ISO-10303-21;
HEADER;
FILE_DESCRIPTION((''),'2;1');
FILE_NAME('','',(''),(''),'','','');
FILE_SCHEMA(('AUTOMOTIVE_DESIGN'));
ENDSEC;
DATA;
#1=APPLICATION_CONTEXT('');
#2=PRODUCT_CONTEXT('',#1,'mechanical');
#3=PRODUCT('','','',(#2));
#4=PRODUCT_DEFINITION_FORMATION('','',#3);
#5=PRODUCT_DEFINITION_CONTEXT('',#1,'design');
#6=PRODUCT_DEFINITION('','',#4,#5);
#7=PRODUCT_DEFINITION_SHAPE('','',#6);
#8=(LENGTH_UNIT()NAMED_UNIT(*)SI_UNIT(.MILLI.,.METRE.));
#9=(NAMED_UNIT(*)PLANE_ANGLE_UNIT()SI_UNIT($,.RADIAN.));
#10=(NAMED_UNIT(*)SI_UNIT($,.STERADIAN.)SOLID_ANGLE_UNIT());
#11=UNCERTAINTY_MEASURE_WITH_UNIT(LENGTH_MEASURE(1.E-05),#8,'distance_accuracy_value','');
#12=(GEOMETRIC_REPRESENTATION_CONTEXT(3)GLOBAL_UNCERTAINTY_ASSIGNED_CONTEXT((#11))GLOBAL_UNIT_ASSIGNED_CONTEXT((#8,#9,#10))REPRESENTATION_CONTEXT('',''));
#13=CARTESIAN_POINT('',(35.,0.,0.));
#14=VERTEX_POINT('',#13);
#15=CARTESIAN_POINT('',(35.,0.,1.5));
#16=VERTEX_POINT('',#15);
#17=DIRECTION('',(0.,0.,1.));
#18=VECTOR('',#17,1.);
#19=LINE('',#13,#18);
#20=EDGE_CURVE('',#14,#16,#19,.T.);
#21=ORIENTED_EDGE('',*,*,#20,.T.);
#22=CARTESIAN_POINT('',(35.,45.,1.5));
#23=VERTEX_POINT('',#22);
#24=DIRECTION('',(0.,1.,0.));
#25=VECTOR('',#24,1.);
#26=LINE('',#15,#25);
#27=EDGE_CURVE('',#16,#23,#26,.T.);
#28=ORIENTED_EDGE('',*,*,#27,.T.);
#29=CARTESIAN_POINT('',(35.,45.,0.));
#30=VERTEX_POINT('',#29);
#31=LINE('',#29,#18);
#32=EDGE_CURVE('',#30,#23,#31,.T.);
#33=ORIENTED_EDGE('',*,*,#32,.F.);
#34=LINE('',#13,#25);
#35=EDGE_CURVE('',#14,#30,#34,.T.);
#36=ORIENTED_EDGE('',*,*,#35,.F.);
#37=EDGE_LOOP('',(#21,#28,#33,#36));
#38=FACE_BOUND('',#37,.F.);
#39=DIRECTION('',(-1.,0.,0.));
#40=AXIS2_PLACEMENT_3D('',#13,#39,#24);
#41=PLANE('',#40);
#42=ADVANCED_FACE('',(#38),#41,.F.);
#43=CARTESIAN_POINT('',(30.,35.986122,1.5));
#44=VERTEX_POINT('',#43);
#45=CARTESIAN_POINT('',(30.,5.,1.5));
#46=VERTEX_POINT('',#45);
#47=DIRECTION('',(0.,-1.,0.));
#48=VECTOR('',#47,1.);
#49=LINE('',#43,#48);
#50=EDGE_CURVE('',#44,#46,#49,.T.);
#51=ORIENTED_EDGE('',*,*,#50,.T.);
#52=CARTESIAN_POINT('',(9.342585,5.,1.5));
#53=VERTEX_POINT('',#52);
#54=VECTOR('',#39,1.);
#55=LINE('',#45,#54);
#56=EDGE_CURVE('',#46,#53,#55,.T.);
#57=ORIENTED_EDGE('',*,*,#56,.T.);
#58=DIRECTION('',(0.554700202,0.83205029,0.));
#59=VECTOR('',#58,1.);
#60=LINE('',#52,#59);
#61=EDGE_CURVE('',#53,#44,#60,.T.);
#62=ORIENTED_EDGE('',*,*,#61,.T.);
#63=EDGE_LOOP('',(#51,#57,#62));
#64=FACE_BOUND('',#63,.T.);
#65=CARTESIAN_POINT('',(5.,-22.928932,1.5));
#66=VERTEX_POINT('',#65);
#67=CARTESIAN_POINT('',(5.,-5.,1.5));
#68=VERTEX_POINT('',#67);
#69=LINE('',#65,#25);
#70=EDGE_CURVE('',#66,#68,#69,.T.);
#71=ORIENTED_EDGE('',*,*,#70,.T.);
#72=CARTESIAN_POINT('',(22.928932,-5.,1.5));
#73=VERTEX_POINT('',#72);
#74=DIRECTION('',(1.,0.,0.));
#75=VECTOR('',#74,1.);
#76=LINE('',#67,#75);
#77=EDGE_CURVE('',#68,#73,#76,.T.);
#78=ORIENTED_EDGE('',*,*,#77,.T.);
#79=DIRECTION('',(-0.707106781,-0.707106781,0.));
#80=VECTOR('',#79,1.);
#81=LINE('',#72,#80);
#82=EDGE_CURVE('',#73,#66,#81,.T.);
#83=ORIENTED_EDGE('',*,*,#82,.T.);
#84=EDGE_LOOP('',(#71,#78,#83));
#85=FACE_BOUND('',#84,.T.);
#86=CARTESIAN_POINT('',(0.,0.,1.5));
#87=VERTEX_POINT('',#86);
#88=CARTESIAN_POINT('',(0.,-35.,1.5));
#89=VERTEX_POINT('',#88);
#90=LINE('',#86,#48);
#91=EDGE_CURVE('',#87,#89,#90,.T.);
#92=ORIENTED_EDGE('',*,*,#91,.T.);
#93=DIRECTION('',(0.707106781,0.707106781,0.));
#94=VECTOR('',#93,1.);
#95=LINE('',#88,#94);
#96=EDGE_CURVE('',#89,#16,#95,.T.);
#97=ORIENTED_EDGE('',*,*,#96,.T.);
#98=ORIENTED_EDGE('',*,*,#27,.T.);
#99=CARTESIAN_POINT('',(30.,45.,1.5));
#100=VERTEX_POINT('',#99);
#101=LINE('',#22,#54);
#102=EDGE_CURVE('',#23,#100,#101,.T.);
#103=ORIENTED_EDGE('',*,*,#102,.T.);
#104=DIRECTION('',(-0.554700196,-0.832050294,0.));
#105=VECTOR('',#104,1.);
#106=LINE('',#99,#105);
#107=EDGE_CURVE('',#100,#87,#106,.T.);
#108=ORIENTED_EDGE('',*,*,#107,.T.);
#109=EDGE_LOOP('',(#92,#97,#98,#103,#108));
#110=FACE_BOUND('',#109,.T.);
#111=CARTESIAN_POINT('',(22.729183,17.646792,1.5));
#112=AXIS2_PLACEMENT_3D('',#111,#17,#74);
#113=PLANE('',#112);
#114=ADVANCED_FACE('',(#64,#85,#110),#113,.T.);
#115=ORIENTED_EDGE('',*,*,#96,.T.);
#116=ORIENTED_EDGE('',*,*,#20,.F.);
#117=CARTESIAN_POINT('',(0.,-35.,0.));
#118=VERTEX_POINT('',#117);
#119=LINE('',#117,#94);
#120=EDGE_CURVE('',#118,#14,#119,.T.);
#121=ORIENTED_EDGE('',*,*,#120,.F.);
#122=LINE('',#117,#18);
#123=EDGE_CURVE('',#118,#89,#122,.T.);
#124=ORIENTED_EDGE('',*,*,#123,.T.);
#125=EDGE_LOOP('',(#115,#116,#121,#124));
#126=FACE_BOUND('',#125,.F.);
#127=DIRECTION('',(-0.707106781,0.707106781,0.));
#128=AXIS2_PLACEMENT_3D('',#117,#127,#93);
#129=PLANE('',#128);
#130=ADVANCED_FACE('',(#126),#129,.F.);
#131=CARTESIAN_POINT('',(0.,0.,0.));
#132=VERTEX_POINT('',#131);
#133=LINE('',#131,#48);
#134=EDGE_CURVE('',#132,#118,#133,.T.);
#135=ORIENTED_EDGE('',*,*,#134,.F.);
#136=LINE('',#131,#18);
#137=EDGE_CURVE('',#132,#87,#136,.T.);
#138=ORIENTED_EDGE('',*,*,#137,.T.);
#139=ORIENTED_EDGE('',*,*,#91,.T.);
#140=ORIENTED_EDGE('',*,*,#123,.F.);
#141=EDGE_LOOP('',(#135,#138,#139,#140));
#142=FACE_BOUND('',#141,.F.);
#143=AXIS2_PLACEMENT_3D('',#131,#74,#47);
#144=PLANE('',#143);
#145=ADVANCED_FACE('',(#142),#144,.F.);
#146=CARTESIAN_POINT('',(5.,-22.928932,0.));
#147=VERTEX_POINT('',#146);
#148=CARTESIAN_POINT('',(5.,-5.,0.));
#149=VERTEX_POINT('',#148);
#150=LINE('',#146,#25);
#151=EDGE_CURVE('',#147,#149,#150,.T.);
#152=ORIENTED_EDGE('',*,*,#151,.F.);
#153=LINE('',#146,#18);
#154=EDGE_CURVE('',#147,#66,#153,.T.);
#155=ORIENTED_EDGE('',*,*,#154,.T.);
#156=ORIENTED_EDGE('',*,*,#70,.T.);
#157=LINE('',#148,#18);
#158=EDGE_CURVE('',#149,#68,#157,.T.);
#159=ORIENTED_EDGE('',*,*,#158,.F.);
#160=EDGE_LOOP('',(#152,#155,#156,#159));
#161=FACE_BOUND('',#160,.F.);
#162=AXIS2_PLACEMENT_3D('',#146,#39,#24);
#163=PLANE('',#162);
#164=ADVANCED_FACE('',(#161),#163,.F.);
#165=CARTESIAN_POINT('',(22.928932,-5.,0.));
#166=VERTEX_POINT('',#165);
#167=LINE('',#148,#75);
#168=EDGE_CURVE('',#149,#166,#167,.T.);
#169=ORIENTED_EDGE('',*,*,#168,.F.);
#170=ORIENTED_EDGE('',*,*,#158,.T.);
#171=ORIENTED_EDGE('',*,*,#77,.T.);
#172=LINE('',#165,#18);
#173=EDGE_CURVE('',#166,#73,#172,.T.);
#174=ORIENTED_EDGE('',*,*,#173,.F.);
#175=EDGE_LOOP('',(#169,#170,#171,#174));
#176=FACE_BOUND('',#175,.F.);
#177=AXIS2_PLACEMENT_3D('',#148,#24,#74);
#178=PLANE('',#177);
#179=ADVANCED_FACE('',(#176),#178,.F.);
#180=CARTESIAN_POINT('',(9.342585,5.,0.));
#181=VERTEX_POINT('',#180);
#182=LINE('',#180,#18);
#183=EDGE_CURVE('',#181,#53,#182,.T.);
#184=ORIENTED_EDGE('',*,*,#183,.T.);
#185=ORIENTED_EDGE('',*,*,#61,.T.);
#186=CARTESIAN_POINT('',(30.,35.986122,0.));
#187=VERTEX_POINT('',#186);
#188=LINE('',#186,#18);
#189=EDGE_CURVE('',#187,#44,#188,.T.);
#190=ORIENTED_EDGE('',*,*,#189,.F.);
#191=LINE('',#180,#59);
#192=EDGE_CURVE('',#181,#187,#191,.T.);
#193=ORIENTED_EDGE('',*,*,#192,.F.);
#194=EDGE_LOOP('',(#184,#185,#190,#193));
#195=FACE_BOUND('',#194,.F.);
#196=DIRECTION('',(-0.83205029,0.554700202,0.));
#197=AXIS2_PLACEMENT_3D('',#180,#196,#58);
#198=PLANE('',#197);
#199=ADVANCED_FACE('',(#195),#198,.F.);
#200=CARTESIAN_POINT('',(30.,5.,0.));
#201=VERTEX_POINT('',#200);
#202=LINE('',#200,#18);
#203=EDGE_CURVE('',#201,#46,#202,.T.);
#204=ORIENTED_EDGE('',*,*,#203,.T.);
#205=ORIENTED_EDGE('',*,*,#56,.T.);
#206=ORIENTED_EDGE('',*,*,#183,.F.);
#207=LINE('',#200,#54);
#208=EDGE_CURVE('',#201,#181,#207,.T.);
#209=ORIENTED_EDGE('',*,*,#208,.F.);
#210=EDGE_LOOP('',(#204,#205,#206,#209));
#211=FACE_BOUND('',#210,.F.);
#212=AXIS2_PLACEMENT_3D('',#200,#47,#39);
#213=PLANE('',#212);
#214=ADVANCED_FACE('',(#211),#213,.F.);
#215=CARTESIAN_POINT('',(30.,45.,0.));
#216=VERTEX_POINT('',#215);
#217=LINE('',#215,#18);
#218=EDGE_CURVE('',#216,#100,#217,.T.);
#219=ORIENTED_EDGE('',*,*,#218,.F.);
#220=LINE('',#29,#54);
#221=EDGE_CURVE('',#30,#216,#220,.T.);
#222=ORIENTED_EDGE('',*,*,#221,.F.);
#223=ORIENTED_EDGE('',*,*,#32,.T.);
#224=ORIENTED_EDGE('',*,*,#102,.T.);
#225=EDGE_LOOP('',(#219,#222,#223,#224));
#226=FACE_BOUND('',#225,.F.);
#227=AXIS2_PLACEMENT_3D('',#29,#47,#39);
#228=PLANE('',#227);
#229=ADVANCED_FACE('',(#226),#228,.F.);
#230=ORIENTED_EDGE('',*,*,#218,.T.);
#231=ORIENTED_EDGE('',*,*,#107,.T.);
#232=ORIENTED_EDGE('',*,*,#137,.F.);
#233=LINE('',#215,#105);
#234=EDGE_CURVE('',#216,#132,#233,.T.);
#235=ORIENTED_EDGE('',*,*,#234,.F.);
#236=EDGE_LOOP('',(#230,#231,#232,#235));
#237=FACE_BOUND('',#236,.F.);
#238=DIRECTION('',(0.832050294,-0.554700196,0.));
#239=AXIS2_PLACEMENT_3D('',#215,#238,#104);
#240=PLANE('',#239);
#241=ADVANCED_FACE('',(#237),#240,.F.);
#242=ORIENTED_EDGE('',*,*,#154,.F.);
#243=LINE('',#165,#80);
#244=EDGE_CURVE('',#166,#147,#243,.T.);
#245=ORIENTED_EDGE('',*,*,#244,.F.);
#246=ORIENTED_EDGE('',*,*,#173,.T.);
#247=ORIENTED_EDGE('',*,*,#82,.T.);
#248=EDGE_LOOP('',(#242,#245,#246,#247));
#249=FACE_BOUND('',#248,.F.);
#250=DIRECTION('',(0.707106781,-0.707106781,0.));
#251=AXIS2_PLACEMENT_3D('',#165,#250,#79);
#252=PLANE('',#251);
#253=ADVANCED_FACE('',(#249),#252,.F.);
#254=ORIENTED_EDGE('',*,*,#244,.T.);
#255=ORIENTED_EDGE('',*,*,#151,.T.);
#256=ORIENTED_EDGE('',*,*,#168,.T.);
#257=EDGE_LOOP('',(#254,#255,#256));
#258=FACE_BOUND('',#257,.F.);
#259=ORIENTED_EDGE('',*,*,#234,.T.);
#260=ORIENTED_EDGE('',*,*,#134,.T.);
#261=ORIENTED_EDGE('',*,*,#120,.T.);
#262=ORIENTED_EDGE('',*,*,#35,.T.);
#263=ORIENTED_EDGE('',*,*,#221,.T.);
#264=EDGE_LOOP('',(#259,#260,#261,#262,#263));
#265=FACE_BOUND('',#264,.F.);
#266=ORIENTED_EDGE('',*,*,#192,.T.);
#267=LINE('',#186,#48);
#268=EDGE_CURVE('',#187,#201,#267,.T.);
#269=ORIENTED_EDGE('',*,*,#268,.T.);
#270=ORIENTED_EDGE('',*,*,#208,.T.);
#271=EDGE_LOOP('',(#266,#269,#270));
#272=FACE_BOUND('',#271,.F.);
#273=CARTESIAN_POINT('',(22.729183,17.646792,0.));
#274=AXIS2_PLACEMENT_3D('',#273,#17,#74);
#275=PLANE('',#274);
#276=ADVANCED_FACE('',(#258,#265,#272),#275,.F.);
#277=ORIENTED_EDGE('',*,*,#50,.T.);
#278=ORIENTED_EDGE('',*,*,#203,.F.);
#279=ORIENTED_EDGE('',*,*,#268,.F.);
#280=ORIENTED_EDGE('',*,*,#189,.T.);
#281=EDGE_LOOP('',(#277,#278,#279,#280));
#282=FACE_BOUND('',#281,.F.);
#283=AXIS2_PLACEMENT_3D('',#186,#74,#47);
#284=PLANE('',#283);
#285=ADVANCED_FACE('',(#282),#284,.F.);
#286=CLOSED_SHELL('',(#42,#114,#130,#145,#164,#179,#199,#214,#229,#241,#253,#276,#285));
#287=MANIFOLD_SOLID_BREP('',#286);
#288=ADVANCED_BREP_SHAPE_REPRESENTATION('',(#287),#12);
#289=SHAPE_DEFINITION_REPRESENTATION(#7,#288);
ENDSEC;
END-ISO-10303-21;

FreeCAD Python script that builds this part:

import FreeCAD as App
import Part
import Sketcher
from FreeCAD import Vector

doc = App.newDocument("Part")
body = doc.addObject("PartDesign::Body", "Body")

sketch1 = body.newObject("Sketcher::SketchObject", "Sketch")
sketch1.AttachmentSupport = (doc.getObject("XY_Plane"), [""])
sketch1.MapMode = "FlatFace"
sketch1.addGeometry([
    Part.LineSegment(Vector(30, 45, 0), Vector(0, 0, 0)),
    Part.LineSegment(Vector(0, 0, 0), Vector(0, -35, 0)),
    Part.LineSegment(Vector(0, -35, 0), Vector(35, 0, 0)),
    Part.LineSegment(Vector(35, 0, 0), Vector(35, 45, 0)),
    Part.LineSegment(Vector(35, 45, 0), Vector(30, 45, 0)),
    Part.LineSegment(Vector(23, -5, 0), Vector(5, -23, 0)),
    Part.LineSegment(Vector(5, -23, 0), Vector(5, -5, 0)),
    Part.LineSegment(Vector(5, -5, 0), Vector(23, -5, 0)),
    Part.LineSegment(Vector(30, 5, 0), Vector(9, 5, 0)),
    Part.LineSegment(Vector(9, 5, 0), Vector(30, 36, 0)),
    Part.LineSegment(Vector(30, 36, 0), Vector(30, 5, 0)),
], False)
sketch1.addConstraint([
    Sketcher.Constraint("Coincident", 0, 2, 1, 1),
    Sketcher.Constraint("Coincident", 1, 2, 2, 1),
    Sketcher.Constraint("Coincident", 2, 2, 3, 1),
    Sketcher.Constraint("Coincident", 3, 2, 4, 1),
    Sketcher.Constraint("Coincident", 4, 2, 0, 1),
    Sketcher.Constraint("Coincident", 5, 2, 6, 1),
    Sketcher.Constraint("Coincident", 6, 2, 7, 1),
    Sketcher.Constraint("Coincident", 7, 2, 5, 1),
    Sketcher.Constraint("Coincident", 8, 2, 9, 1),
    Sketcher.Constraint("Coincident", 9, 2, 10, 1),
    Sketcher.Constraint("Coincident", 10, 2, 8, 1),
    Sketcher.Constraint("Vertical", 1),
    Sketcher.Constraint("Vertical", 3),
    Sketcher.Constraint("Horizontal", 4),
    Sketcher.Constraint("Vertical", 6),
    Sketcher.Constraint("Horizontal", 7),
    Sketcher.Constraint("Horizontal", 8),
    Sketcher.Constraint("Vertical", 10),
    Sketcher.Constraint("Coincident", 0, 2, -1, 1),
    Sketcher.Constraint("PointOnObject", 2, 2, -1),
    Sketcher.Constraint("Parallel", 2, 5),
    Sketcher.Constraint("Parallel", 0, 9),
    Sketcher.Constraint("Vertical", 4, 2, 9, 2),
    Sketcher.Constraint("Equal", 7, 6),
    Sketcher.Constraint("DistanceX", 4, 2, 4, 1, 5.0),
    Sketcher.Constraint("DistanceY", 1, 2, 1, 1, 35.0),
    Sketcher.Constraint("DistanceY", 3, 1, 3, 2, 45.0),
    Sketcher.Constraint("DistanceX", -1, 1, 5, 2, 5.0),
    Sketcher.Constraint("DistanceY", 6, 2, -1, 1, 5.0),
    Sketcher.Constraint("DistanceY", -1, 1, 8, 2, 5.0),
    Sketcher.Constraint("DistanceX", 7, 1, 7, 2, 17.928932),
    Sketcher.Constraint("DistanceX", 8, 2, 8, 1, 20.657415),
])
pad1 = body.newObject("PartDesign::Pad", "Pad")
pad1.Profile = sketch1
pad1.Length = 1.5

doc.recompute()
